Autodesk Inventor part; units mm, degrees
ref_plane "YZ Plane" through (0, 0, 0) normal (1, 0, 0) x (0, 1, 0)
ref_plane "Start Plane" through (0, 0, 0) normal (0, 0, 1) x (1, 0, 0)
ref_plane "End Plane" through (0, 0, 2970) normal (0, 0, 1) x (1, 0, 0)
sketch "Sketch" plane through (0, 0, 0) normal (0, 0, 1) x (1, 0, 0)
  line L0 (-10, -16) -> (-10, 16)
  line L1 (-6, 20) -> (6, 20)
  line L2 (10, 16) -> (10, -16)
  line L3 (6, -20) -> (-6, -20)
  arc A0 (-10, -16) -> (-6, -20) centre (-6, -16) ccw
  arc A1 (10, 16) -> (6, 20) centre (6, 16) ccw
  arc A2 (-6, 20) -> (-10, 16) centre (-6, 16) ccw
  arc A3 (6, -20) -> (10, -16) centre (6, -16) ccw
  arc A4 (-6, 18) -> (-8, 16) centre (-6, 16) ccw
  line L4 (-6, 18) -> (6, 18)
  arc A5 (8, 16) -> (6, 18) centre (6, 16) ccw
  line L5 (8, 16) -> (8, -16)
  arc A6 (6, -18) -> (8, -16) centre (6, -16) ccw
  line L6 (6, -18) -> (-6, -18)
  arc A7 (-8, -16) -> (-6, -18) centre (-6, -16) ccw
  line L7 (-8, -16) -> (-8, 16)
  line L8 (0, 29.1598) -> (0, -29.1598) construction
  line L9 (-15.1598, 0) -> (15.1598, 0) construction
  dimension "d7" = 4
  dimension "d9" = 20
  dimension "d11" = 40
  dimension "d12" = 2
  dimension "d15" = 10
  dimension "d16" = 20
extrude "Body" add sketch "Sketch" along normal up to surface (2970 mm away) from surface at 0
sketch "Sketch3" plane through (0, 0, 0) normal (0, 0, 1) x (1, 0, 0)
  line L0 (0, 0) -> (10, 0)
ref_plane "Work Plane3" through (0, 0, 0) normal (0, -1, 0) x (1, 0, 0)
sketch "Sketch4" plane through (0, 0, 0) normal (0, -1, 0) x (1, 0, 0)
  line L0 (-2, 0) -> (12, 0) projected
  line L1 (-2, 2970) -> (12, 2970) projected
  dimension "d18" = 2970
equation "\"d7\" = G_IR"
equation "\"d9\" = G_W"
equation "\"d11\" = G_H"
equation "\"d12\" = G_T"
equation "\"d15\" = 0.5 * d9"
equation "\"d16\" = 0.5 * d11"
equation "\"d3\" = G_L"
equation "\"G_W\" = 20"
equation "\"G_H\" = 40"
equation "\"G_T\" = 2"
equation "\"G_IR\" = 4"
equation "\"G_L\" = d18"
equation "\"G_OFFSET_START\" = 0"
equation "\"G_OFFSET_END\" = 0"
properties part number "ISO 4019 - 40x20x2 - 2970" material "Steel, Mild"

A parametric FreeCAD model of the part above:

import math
import FreeCAD as App
import Part
import Sketcher

doc = App.newDocument("Part")
body = doc.addObject("PartDesign::Body", "Body")

# Sketch on XY plane
sketch1 = body.newObject("Sketcher::SketchObject", "Sketch")
sketch1.AttachmentSupport = (doc.getObject("XY_Plane"), [""])
sketch1.MapMode = "FlatFace"
sketch1.addGeometry([
    Part.LineSegment(App.Vector(-10, 16, 0), App.Vector(-10, -16, 0)),  # 0
    Part.ArcOfCircle(Part.Circle(App.Vector(-6, -16, 0), App.Vector(0, 0, 1), 4), math.radians(180), math.radians(270)),  # 1
    Part.LineSegment(App.Vector(-6, -20, 0), App.Vector(6, -20, 0)),  # 2
    Part.ArcOfCircle(Part.Circle(App.Vector(6, -16, 0), App.Vector(0, 0, 1), 4), math.radians(-90), math.radians(0)),  # 3
    Part.LineSegment(App.Vector(10, -16, 0), App.Vector(10, 16, 0)),  # 4
    Part.ArcOfCircle(Part.Circle(App.Vector(6, 16, 0), App.Vector(0, 0, 1), 4), math.radians(0), math.radians(90)),  # 5
    Part.LineSegment(App.Vector(6, 20, 0), App.Vector(-6, 20, 0)),  # 6
    Part.ArcOfCircle(Part.Circle(App.Vector(-6, 16, 0), App.Vector(0, 0, 1), 4), math.radians(90), math.radians(180)),  # 7
    Part.ArcOfCircle(Part.Circle(App.Vector(-6, 16, 0), App.Vector(0, 0, 1), 2), math.radians(90), math.radians(180)),  # 8
    Part.LineSegment(App.Vector(-6, 18, 0), App.Vector(6, 18, 0)),  # 9
    Part.ArcOfCircle(Part.Circle(App.Vector(6, 16, 0), App.Vector(0, 0, 1), 2), math.radians(0), math.radians(90)),  # 10
    Part.LineSegment(App.Vector(8, 16, 0), App.Vector(8, -16, 0)),  # 11
    Part.ArcOfCircle(Part.Circle(App.Vector(6, -16, 0), App.Vector(0, 0, 1), 2), math.radians(-90), math.radians(0)),  # 12
    Part.LineSegment(App.Vector(6, -18, 0), App.Vector(-6, -18, 0)),  # 13
    Part.ArcOfCircle(Part.Circle(App.Vector(-6, -16, 0), App.Vector(0, 0, 1), 2), math.radians(180), math.radians(270)),  # 14
    Part.LineSegment(App.Vector(-8, -16, 0), App.Vector(-8, 16, 0)),  # 15
], False)
sketch1.addConstraint([
    Sketcher.Constraint("Tangent", 0, 2, 1, 1),
    Sketcher.Constraint("Tangent", 1, 2, 2, 1),
    Sketcher.Constraint("Tangent", 2, 2, 3, 1),
    Sketcher.Constraint("Tangent", 3, 2, 4, 1),
    Sketcher.Constraint("Tangent", 4, 2, 5, 1),
    Sketcher.Constraint("Tangent", 5, 2, 6, 1),
    Sketcher.Constraint("Tangent", 6, 2, 7, 1),
    Sketcher.Constraint("Tangent", 7, 2, 0, 1),
    Sketcher.Constraint("Tangent", 8, 1, 9, 1),
    Sketcher.Constraint("Tangent", 9, 2, 10, 2),
    Sketcher.Constraint("Tangent", 10, 1, 11, 1),
    Sketcher.Constraint("Tangent", 11, 2, 12, 2),
    Sketcher.Constraint("Tangent", 12, 1, 13, 1),
    Sketcher.Constraint("Tangent", 13, 2, 14, 2),
    Sketcher.Constraint("Tangent", 14, 1, 15, 1),
    Sketcher.Constraint("Tangent", 15, 2, 8, 2),
    Sketcher.Constraint("Vertical", 0),
    Sketcher.Constraint("Horizontal", 2),
    Sketcher.Constraint("Vertical", 4),
    Sketcher.Constraint("Horizontal", 6),
    Sketcher.Constraint("Horizontal", 9),
    Sketcher.Constraint("Vertical", 11),
    Sketcher.Constraint("Horizontal", 13),
    Sketcher.Constraint("Vertical", 15),
    Sketcher.Constraint("Coincident", 8, 3, 7, 3),
    Sketcher.Constraint("Coincident", 10, 3, 5, 3),
    Sketcher.Constraint("Coincident", 12, 3, 3, 3),
    Sketcher.Constraint("Equal", 1, 3),
    Sketcher.Constraint("Equal", 3, 5),
    Sketcher.Constraint("Equal", 5, 7),
    Sketcher.Constraint("Equal", 12, 14),
    Sketcher.Constraint("Symmetric", 1, 3, 5, 3, -1, 1),
    Sketcher.Constraint("Radius", 1, 4.0),
    Sketcher.Constraint("Radius", 8, 2.0),
    Sketcher.Constraint("DistanceX", 0, 2, -1, 1, 10.0),
    Sketcher.Constraint("DistanceY", 1, 2, -1, 1, 20.0),
])
pad1 = body.newObject("PartDesign::Pad", "Pad")
pad1.Profile = sketch1
pad1.Length = 2970

doc.recompute()
